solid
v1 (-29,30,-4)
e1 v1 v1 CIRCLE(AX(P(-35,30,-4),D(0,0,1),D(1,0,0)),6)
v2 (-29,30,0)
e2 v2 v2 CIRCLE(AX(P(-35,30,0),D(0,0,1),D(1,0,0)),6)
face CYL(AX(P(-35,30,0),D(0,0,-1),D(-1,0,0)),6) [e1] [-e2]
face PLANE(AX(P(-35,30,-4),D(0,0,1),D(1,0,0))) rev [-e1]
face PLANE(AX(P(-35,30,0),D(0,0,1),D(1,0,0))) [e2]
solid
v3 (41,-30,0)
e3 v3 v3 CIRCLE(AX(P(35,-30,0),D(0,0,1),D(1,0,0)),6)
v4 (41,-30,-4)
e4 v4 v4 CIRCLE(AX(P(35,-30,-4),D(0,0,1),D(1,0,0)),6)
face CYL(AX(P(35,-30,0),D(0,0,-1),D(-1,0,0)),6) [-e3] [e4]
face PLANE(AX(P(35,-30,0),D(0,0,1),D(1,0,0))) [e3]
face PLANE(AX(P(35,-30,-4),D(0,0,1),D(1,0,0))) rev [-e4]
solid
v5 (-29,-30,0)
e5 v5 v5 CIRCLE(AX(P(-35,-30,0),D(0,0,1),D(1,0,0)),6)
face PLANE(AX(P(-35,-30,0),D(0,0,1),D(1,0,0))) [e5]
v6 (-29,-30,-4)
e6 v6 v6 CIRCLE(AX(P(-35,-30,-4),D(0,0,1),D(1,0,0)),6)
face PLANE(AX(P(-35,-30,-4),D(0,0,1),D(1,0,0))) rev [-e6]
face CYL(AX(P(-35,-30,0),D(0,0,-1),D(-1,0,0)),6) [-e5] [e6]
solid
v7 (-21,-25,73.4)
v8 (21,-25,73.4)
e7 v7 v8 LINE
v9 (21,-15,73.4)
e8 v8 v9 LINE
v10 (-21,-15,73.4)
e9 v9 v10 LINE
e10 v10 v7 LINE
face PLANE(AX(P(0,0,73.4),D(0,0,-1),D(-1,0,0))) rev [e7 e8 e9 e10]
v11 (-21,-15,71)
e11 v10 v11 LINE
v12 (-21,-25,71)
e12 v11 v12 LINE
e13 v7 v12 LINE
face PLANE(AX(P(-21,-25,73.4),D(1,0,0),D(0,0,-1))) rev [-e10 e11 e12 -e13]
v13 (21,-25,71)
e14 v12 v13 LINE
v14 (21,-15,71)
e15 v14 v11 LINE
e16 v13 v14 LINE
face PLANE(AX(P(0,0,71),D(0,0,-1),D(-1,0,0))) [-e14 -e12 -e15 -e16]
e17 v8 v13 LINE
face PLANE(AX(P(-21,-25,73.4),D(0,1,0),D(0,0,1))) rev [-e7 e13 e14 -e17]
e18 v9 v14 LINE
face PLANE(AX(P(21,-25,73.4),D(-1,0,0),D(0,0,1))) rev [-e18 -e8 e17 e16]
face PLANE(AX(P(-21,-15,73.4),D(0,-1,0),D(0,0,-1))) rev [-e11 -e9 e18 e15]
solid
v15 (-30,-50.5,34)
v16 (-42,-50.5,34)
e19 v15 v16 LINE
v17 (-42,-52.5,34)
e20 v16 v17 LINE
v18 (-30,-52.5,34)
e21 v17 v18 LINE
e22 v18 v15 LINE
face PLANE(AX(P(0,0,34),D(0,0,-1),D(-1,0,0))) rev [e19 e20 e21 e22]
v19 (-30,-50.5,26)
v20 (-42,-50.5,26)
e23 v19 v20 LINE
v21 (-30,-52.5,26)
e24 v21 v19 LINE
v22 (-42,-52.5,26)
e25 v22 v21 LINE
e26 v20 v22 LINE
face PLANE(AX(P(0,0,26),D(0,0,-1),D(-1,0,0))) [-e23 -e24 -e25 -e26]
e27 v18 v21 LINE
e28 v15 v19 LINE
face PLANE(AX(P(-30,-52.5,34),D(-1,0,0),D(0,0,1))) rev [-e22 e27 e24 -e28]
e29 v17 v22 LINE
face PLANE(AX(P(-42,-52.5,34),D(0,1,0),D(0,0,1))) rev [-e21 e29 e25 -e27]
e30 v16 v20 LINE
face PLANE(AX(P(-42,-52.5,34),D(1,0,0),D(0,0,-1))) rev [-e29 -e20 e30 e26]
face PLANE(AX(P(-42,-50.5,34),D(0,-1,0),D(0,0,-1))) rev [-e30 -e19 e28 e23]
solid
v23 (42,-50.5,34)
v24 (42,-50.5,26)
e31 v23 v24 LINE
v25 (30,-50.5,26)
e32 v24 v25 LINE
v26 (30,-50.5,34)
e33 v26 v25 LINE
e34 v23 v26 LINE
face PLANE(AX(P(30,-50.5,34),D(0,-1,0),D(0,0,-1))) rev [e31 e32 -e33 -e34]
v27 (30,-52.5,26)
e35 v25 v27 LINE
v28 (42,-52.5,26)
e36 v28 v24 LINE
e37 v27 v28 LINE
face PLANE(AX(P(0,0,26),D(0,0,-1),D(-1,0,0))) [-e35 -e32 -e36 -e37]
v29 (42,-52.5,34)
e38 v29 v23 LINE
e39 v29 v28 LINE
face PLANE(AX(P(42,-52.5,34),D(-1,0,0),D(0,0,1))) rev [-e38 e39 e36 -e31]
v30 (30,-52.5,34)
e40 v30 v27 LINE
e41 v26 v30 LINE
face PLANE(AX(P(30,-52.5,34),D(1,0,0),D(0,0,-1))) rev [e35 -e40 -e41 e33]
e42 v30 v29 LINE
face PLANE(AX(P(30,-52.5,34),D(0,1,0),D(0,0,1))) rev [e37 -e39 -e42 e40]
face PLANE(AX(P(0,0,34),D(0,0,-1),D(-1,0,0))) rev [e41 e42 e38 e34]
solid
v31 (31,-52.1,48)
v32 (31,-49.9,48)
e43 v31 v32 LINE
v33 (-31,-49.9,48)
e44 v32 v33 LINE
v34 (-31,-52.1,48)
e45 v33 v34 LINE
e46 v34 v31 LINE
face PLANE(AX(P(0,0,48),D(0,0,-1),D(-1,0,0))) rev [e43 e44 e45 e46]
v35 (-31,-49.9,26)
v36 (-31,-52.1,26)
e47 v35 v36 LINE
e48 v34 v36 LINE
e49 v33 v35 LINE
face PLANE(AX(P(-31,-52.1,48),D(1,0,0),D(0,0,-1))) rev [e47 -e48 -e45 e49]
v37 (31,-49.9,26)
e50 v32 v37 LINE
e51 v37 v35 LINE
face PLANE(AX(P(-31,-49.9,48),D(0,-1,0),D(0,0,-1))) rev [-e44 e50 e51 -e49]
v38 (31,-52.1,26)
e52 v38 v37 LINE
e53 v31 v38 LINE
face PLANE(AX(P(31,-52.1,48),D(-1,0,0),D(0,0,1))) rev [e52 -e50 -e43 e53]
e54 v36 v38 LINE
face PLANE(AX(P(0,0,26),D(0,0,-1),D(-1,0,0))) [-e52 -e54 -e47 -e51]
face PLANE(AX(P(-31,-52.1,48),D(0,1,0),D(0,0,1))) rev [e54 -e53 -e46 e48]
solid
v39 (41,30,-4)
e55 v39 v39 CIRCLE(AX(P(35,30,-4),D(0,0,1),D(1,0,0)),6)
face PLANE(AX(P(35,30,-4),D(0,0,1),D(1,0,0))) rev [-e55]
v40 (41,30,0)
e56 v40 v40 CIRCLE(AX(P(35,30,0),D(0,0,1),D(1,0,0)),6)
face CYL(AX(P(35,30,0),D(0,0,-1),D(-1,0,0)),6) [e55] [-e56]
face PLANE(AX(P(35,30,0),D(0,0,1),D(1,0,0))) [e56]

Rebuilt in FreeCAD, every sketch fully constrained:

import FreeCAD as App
import Part
import Sketcher
from FreeCAD import Vector

doc = App.newDocument("Part")
body = doc.addObject("PartDesign::Body", "Body")

# Sketch on XY plane
sketch1 = body.newObject("Sketcher::SketchObject", "Sketch")
sketch1.AttachmentSupport = (doc.getObject("XY_Plane"), [""])
sketch1.MapMode = "FlatFace"
sketch1.AttachmentOffset = App.Placement(Vector(0, 0, 26), App.Rotation())
sketch1.addGeometry([
    Part.LineSegment(Vector(-31, -49.9, 0), Vector(-31, -52.1, 0)),
    Part.LineSegment(Vector(-31, -52.1, 0), Vector(31, -52.1, 0)),
    Part.LineSegment(Vector(31, -52.1, 0), Vector(31, -49.9, 0)),
    Part.LineSegment(Vector(31, -49.9, 0), Vector(-31, -49.9, 0)),
], False)
sketch1.addConstraint([
    Sketcher.Constraint("Coincident", 0, 2, 1, 1),
    Sketcher.Constraint("Coincident", 1, 2, 2, 1),
    Sketcher.Constraint("Coincident", 2, 2, 3, 1),
    Sketcher.Constraint("Coincident", 3, 2, 0, 1),
    Sketcher.Constraint("Vertical", 0),
    Sketcher.Constraint("Horizontal", 1),
    Sketcher.Constraint("Vertical", 2),
    Sketcher.Constraint("Horizontal", 3),
    Sketcher.Constraint("DistanceX", 1, 1, 1, 2, 62.0),
    Sketcher.Constraint("DistanceY", 0, 2, 0, 1, 2.2),
    Sketcher.Constraint("DistanceX", 0, 2, -1, 1, 31.0),
    Sketcher.Constraint("DistanceY", 0, 2, -1, 1, 52.1),
])
pad1 = body.newObject("PartDesign::Pad", "Pad")
pad1.Profile = sketch1
pad1.Length = 22
body2 = doc.addObject("PartDesign::Body", "Body001")

# Sketch on XY plane
sketch2 = body2.newObject("Sketcher::SketchObject", "Sketch001")
sketch2.AttachmentSupport = (doc.getObject("XY_Plane001"), [""])
sketch2.MapMode = "FlatFace"
sketch2.AttachmentOffset = App.Placement(Vector(0, 0, 71), App.Rotation())
sketch2.addGeometry([
    Part.LineSegment(Vector(-21, -15, 0), Vector(-21, -25, 0)),
    Part.LineSegment(Vector(-21, -25, 0), Vector(21, -25, 0)),
    Part.LineSegment(Vector(21, -25, 0), Vector(21, -15, 0)),
    Part.LineSegment(Vector(21, -15, 0), Vector(-21, -15, 0)),
], False)
sketch2.addConstraint([
    Sketcher.Constraint("Coincident", 0, 2, 1, 1),
    Sketcher.Constraint("Coincident", 1, 2, 2, 1),
    Sketcher.Constraint("Coincident", 2, 2, 3, 1),
    Sketcher.Constraint("Coincident", 3, 2, 0, 1),
    Sketcher.Constraint("Vertical", 0),
    Sketcher.Constraint("Horizontal", 1),
    Sketcher.Constraint("Vertical", 2),
    Sketcher.Constraint("Horizontal", 3),
    Sketcher.Constraint("DistanceX", 1, 1, 1, 2, 42.0),
    Sketcher.Constraint("DistanceY", 0, 2, 0, 1, 10.0),
    Sketcher.Constraint("DistanceX", 0, 2, -1, 1, 21.0),
    Sketcher.Constraint("DistanceY", 0, 2, -1, 1, 25.0),
])
pad2 = body2.newObject("PartDesign::Pad", "Pad001")
pad2.Profile = sketch2
pad2.Length = 2.4
body3 = doc.addObject("PartDesign::Body", "Body002")

# Sketch on XY plane
sketch3 = body3.newObject("Sketcher::SketchObject", "Sketch002")
sketch3.AttachmentSupport = (doc.getObject("XY_Plane002"), [""])
sketch3.MapMode = "FlatFace"
sketch3.AttachmentOffset = App.Placement(Vector(0, 0, 26), App.Rotation())
sketch3.addGeometry([
    Part.LineSegment(Vector(-42, -50.5, 0), Vector(-42, -52.5, 0)),
    Part.LineSegment(Vector(-42, -52.5, 0), Vector(-30, -52.5, 0)),
    Part.LineSegment(Vector(-30, -52.5, 0), Vector(-30, -50.5, 0)),
    Part.LineSegment(Vector(-30, -50.5, 0), Vector(-42, -50.5, 0)),
], False)
sketch3.addConstraint([
    Sketcher.Constraint("Coincident", 0, 2, 1, 1),
    Sketcher.Constraint("Coincident", 1, 2, 2, 1),
    Sketcher.Constraint("Coincident", 2, 2, 3, 1),
    Sketcher.Constraint("Coincident", 3, 2, 0, 1),
    Sketcher.Constraint("Vertical", 0),
    Sketcher.Constraint("Horizontal", 1),
    Sketcher.Constraint("Vertical", 2),
    Sketcher.Constraint("Horizontal", 3),
    Sketcher.Constraint("DistanceX", 1, 1, 1, 2, 12.0),
    Sketcher.Constraint("DistanceY", 0, 2, 0, 1, 2.0),
    Sketcher.Constraint("DistanceX", 0, 2, -1, 1, 42.0),
    Sketcher.Constraint("DistanceY", 0, 2, -1, 1, 52.5),
])
pad3 = body3.newObject("PartDesign::Pad", "Pad002")
pad3.Profile = sketch3
pad3.Length = 8
body4 = doc.addObject("PartDesign::Body", "Body003")

# Sketch on XY plane
sketch4 = body4.newObject("Sketcher::SketchObject", "Sketch003")
sketch4.AttachmentSupport = (doc.getObject("XY_Plane003"), [""])
sketch4.MapMode = "FlatFace"
sketch4.AttachmentOffset = App.Placement(Vector(0, 0, 26), App.Rotation())
sketch4.addGeometry([
    Part.LineSegment(Vector(30, -50.5, 0), Vector(30, -52.5, 0)),
    Part.LineSegment(Vector(30, -52.5, 0), Vector(42, -52.5, 0)),
    Part.LineSegment(Vector(42, -52.5, 0), Vector(42, -50.5, 0)),
    Part.LineSegment(Vector(42, -50.5, 0), Vector(30, -50.5, 0)),
], False)
sketch4.addConstraint([
    Sketcher.Constraint("Coincident", 0, 2, 1, 1),
    Sketcher.Constraint("Coincident", 1, 2, 2, 1),
    Sketcher.Constraint("Coincident", 2, 2, 3, 1),
    Sketcher.Constraint("Coincident", 3, 2, 0, 1),
    Sketcher.Constraint("Vertical", 0),
    Sketcher.Constraint("Horizontal", 1),
    Sketcher.Constraint("Vertical", 2),
    Sketcher.Constraint("Horizontal", 3),
    Sketcher.Constraint("DistanceX", 1, 1, 1, 2, 12.0),
    Sketcher.Constraint("DistanceY", 0, 2, 0, 1, 2.0),
    Sketcher.Constraint("DistanceX", -1, 1, 0, 2, 30.0),
    Sketcher.Constraint("DistanceY", 0, 2, -1, 1, 52.5),
])
pad4 = body4.newObject("PartDesign::Pad", "Pad003")
pad4.Profile = sketch4
pad4.Length = 8
body5 = doc.addObject("PartDesign::Body", "Body004")

# Sketch on XY plane
sketch5 = body5.newObject("Sketcher::SketchObject", "Sketch004")
sketch5.AttachmentSupport = (doc.getObject("XY_Plane004"), [""])
sketch5.MapMode = "FlatFace"
sketch5.AttachmentOffset = App.Placement(Vector(0, 0, -4), App.Rotation())
sketch5.addGeometry(Part.Circle(Vector(-35, -30, 0), Vector(0, 0, 1), 6), False)
sketch5.addConstraint([
    Sketcher.Constraint("Diameter", 0, 12.0),
    Sketcher.Constraint("DistanceX", 0, 3, -1, 1, 35.0),
    Sketcher.Constraint("DistanceY", 0, 3, -1, 1, 30.0),
])
pad5 = body5.newObject("PartDesign::Pad", "Pad004")
pad5.Profile = sketch5
pad5.Length = 4
body6 = doc.addObject("PartDesign::Body", "Body005")

# Sketch on XY plane
sketch6 = body6.newObject("Sketcher::SketchObject", "Sketch005")
sketch6.AttachmentSupport = (doc.getObject("XY_Plane005"), [""])
sketch6.MapMode = "FlatFace"
sketch6.AttachmentOffset = App.Placement(Vector(0, 0, -4), App.Rotation())
sketch6.addGeometry(Part.Circle(Vector(35, -30, 0), Vector(0, 0, 1), 6), False)
sketch6.addConstraint([
    Sketcher.Constraint("Diameter", 0, 12.0),
    Sketcher.Constraint("DistanceX", -1, 1, 0, 3, 35.0),
    Sketcher.Constraint("DistanceY", 0, 3, -1, 1, 30.0),
])
pad6 = body6.newObject("PartDesign::Pad", "Pad005")
pad6.Profile = sketch6
pad6.Length = 4
body7 = doc.addObject("PartDesign::Body", "Body006")

# Sketch on XY plane
sketch7 = body7.newObject("Sketcher::SketchObject", "Sketch006")
sketch7.AttachmentSupport = (doc.getObject("XY_Plane006"), [""])
sketch7.MapMode = "FlatFace"
sketch7.AttachmentOffset = App.Placement(Vector(0, 0, -4), App.Rotation())
sketch7.addGeometry(Part.Circle(Vector(-35, 30, 0), Vector(0, 0, 1), 6), False)
sketch7.addConstraint([
    Sketcher.Constraint("Diameter", 0, 12.0),
    Sketcher.Constraint("DistanceX", 0, 3, -1, 1, 35.0),
    Sketcher.Constraint("DistanceY", -1, 1, 0, 3, 30.0),
])
pad7 = body7.newObject("PartDesign::Pad", "Pad006")
pad7.Profile = sketch7
pad7.Length = 4
body8 = doc.addObject("PartDesign::Body", "Body007")

# Sketch on XY plane
sketch8 = body8.newObject("Sketcher::SketchObject", "Sketch007")
sketch8.AttachmentSupport = (doc.getObject("XY_Plane007"), [""])
sketch8.MapMode = "FlatFace"
sketch8.AttachmentOffset = App.Placement(Vector(0, 0, -4), App.Rotation())
sketch8.addGeometry(Part.Circle(Vector(35, 30, 0), Vector(0, 0, 1), 6), False)
sketch8.addConstraint([
    Sketcher.Constraint("Diameter", 0, 12.0),
    Sketcher.Constraint("DistanceX", -1, 1, 0, 3, 35.0),
    Sketcher.Constraint("DistanceY", -1, 1, 0, 3, 30.0),
])
pad8 = body8.newObject("PartDesign::Pad", "Pad007")
pad8.Profile = sketch8
pad8.Length = 4

doc.recompute()
